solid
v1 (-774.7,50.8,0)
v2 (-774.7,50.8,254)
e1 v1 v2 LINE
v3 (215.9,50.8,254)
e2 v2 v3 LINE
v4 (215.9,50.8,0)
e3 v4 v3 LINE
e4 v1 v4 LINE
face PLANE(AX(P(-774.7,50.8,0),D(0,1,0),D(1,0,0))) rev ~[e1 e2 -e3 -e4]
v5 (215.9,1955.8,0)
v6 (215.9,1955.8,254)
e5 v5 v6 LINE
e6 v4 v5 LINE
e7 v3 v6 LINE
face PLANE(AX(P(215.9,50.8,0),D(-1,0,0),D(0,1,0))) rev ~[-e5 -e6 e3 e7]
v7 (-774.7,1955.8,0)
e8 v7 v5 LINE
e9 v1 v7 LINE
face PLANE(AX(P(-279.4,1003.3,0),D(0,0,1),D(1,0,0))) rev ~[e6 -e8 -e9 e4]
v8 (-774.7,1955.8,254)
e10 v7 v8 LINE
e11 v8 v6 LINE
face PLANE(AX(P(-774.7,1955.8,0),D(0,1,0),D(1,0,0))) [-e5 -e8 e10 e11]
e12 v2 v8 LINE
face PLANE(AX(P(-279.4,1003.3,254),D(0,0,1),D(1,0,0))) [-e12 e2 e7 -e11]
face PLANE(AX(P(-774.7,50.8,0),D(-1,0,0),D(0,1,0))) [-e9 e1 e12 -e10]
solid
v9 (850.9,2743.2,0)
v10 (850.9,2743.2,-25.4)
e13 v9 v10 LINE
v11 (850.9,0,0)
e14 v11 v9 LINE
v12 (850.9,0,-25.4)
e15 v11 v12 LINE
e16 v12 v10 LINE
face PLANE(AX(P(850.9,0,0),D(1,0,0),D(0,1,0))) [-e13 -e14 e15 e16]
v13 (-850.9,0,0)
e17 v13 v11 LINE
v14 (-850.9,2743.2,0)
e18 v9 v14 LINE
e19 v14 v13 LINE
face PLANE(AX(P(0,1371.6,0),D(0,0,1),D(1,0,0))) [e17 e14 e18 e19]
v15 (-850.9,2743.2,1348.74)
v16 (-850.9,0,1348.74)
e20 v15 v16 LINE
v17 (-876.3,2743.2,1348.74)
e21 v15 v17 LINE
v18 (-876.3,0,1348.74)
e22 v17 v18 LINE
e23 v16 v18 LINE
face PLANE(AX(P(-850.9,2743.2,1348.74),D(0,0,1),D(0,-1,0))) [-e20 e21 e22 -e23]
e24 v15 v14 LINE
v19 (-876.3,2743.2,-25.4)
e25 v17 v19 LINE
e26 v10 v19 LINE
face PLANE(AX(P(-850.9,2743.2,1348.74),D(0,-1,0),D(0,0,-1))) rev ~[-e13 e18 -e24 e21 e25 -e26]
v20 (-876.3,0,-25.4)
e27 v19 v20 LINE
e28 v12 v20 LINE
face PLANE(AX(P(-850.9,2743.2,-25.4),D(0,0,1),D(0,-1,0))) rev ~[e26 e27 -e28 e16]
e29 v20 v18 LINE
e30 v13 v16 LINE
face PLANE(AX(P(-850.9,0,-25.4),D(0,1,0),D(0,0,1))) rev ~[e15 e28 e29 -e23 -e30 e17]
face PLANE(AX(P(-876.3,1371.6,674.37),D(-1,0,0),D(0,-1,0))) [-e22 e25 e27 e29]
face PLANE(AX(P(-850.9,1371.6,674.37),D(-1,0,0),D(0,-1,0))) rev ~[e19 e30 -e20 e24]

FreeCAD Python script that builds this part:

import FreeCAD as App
import Part
import Sketcher
Q = App.Units.Quantity

doc = App.newDocument("Part")
params = doc.addObject("Spreadsheet::Sheet", "Params")
for row, (alias, value) in enumerate([
    ("sketch1_width", "67 in"),
    ("sketch1_height", "108 in"),
    ("pad1_length", "1 in"),
    ("sketch2_width", "108 in"),
    ("sketch2_height", "54.1 in"),
    ("pad2_length", "1 in"),
    ("sketch3_width", "39 in"),
    ("sketch3_height", "75 in"),
    ("pad3_length", "10 in"),
], start=1):
    params.set(f"A{row}", alias)
    params.set(f"B{row}", "=" + value)
    params.setAlias(f"B{row}", alias)

body = doc.addObject("PartDesign::Body", "Body")

sketch1 = body.newObject("Sketcher::SketchObject", "Sketch")
sketch1.AttachmentSupport = (doc.getObject("XY_Plane"), [""])
sketch1.MapMode = "FlatFace"
sketch1.addGeometry(Part.LineSegment(App.Vector(-851, 2743, 0), App.Vector(-851, 0, 0)), False)
sketch1.addGeometry(Part.LineSegment(App.Vector(-851, 0, 0), App.Vector(851, 0, 0)), False)
sketch1.addGeometry(Part.LineSegment(App.Vector(851, 0, 0), App.Vector(851, 2743, 0)), False)
sketch1.addGeometry(Part.LineSegment(App.Vector(851, 2743, 0), App.Vector(-851, 2743, 0)), False)
sketch1.addConstraint(Sketcher.Constraint("Coincident", 0, 2, 1, 1))
sketch1.addConstraint(Sketcher.Constraint("Coincident", 1, 2, 2, 1))
sketch1.addConstraint(Sketcher.Constraint("Coincident", 2, 2, 3, 1))
sketch1.addConstraint(Sketcher.Constraint("Coincident", 3, 2, 0, 1))
sketch1.addConstraint(Sketcher.Constraint("Vertical", 0))
sketch1.addConstraint(Sketcher.Constraint("Horizontal", 1))
sketch1.addConstraint(Sketcher.Constraint("Vertical", 2))
sketch1.addConstraint(Sketcher.Constraint("Horizontal", 3))
sketch1.addConstraint(Sketcher.Constraint("Symmetric", 0, 2, 1, 2, -1, 1))
sketch1.addConstraint(Sketcher.Constraint("DistanceX", 1, 1, 1, 2, Q("67 in")))
sketch1.addConstraint(Sketcher.Constraint("DistanceY", 0, 2, 0, 1, Q("108 in")))
sketch1.setExpression("Constraints[9]", "Params.sketch1_width")
sketch1.setExpression("Constraints[10]", "Params.sketch1_height")
pad1 = body.newObject("PartDesign::Pad", "Pad")
pad1.Profile = sketch1
pad1.setExpression("Length", "Params.pad1_length")
pad1.Reversed = True

sketch2 = body.newObject("Sketcher::SketchObject", "Sketch001")
sketch2.AttachmentSupport = (doc.getObject("YZ_Plane"), [""])
sketch2.MapMode = "FlatFace"
sketch2.AttachmentOffset = App.Placement(App.Vector(0, 0, -33.5 * 25.4), App.Rotation())
sketch2.addGeometry(Part.LineSegment(App.Vector(2743, 1349, 0), App.Vector(2743, -25, 0)), False)
sketch2.addGeometry(Part.LineSegment(App.Vector(2743, -25, 0), App.Vector(0, -25, 0)), False)
sketch2.addGeometry(Part.LineSegment(App.Vector(0, -25, 0), App.Vector(0, 1349, 0)), False)
sketch2.addGeometry(Part.LineSegment(App.Vector(0, 1349, 0), App.Vector(2743, 1349, 0)), False)
sketch2.addConstraint(Sketcher.Constraint("Coincident", 0, 2, 1, 1))
sketch2.addConstraint(Sketcher.Constraint("Coincident", 1, 2, 2, 1))
sketch2.addConstraint(Sketcher.Constraint("Coincident", 2, 2, 3, 1))
sketch2.addConstraint(Sketcher.Constraint("Coincident", 3, 2, 0, 1))
sketch2.addConstraint(Sketcher.Constraint("Vertical", 0))
sketch2.addConstraint(Sketcher.Constraint("Horizontal", 1))
sketch2.addConstraint(Sketcher.Constraint("Vertical", 2))
sketch2.addConstraint(Sketcher.Constraint("Horizontal", 3))
sketch2.addConstraint(Sketcher.Constraint("PointOnObject", 1, 2, -2))
sketch2.addConstraint(Sketcher.Constraint("DistanceX", 1, 2, 1, 1, Q("108 in")))
sketch2.addConstraint(Sketcher.Constraint("DistanceY", 0, 2, 0, 1, Q("54.1 in")))
sketch2.addConstraint(Sketcher.Constraint("DistanceY", 0, 2, -1, 1, Q("1 in")))
sketch2.setExpression("Constraints[9]", "Params.sketch2_width")
sketch2.setExpression("Constraints[10]", "Params.sketch2_height")
pad2 = body.newObject("PartDesign::Pad", "Pad001")
pad2.Profile = sketch2
pad2.setExpression("Length", "Params.pad2_length")
pad2.Reversed = True
body2 = doc.addObject("PartDesign::Body", "Body001")

sketch3 = body2.newObject("Sketcher::SketchObject", "Sketch002")
sketch3.AttachmentSupport = (doc.getObject("XY_Plane001"), [""])
sketch3.MapMode = "FlatFace"
sketch3.addGeometry(Part.LineSegment(App.Vector(-775, 1956, 0), App.Vector(-775, 51, 0)), False)
sketch3.addGeometry(Part.LineSegment(App.Vector(-775, 51, 0), App.Vector(216, 51, 0)), False)
sketch3.addGeometry(Part.LineSegment(App.Vector(216, 51, 0), App.Vector(216, 1956, 0)), False)
sketch3.addGeometry(Part.LineSegment(App.Vector(216, 1956, 0), App.Vector(-775, 1956, 0)), False)
sketch3.addConstraint(Sketcher.Constraint("Coincident", 0, 2, 1, 1))
sketch3.addConstraint(Sketcher.Constraint("Coincident", 1, 2, 2, 1))
sketch3.addConstraint(Sketcher.Constraint("Coincident", 2, 2, 3, 1))
sketch3.addConstraint(Sketcher.Constraint("Coincident", 3, 2, 0, 1))
sketch3.addConstraint(Sketcher.Constraint("Vertical", 0))
sketch3.addConstraint(Sketcher.Constraint("Horizontal", 1))
sketch3.addConstraint(Sketcher.Constraint("Vertical", 2))
sketch3.addConstraint(Sketcher.Constraint("Horizontal", 3))
sketch3.addConstraint(Sketcher.Constraint("DistanceX", 1, 1, 1, 2, Q("39 in")))
sketch3.addConstraint(Sketcher.Constraint("DistanceY", 0, 2, 0, 1, Q("75 in")))
sketch3.addConstraint(Sketcher.Constraint("DistanceY", -1, 1, 0, 2, Q("2 in")))
sketch3.addConstraint(Sketcher.Constraint("DistanceX", 0, 2, -1, 1, Q("30.5 in")))
sketch3.setExpression("Constraints[8]", "Params.sketch3_width")
sketch3.setExpression("Constraints[9]", "Params.sketch3_height")
pad3 = body2.newObject("PartDesign::Pad", "Pad002")
pad3.Profile = sketch3
pad3.setExpression("Length", "Params.pad3_length")

doc.recompute()
